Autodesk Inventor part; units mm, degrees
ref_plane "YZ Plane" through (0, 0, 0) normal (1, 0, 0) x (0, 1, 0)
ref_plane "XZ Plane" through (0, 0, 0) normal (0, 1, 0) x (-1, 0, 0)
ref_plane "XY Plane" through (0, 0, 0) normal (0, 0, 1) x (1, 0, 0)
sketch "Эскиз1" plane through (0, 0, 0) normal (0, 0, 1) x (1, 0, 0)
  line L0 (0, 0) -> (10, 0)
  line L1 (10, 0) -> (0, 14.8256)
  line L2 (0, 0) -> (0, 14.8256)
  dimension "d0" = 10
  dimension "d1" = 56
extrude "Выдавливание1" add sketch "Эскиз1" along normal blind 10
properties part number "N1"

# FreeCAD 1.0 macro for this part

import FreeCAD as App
import Part
import Sketcher

V = App.Vector
Q = App.Units.Quantity

doc = App.newDocument("Part")
params = doc.addObject("Spreadsheet::Sheet", "Params")
for row, (alias, value) in enumerate([
    ("sketch1_width", "10 mm"),
    ("pad1_length", "10 mm"),
], start=1):
    params.set(f"A{row}", alias)
    params.set(f"B{row}", "=" + value)
    params.setAlias(f"B{row}", alias)

body = doc.addObject("PartDesign::Body", "Body")

sketch1 = body.newObject("Sketcher::SketchObject", "Sketch")
sketch1.AttachmentSupport = (doc.getObject("XY_Plane"), [""])
sketch1.MapMode = "FlatFace"
sketch1.addGeometry(Part.LineSegment(V(0, 15, 0), V(0, 0, 0)), False)
sketch1.addGeometry(Part.LineSegment(V(0, 0, 0), V(10, 0, 0)), False)
sketch1.addGeometry(Part.LineSegment(V(10, 0, 0), V(0, 15, 0)), False)
sketch1.addConstraint(Sketcher.Constraint("Coincident", 0, 2, 1, 1))
sketch1.addConstraint(Sketcher.Constraint("Coincident", 1, 2, 2, 1))
sketch1.addConstraint(Sketcher.Constraint("Coincident", 2, 2, 0, 1))
sketch1.addConstraint(Sketcher.Constraint("Vertical", 0))
sketch1.addConstraint(Sketcher.Constraint("Horizontal", 1))
sketch1.addConstraint(Sketcher.Constraint("Coincident", 0, 2, -1, 1))
sketch1.addConstraint(Sketcher.Constraint("DistanceX", 1, 1, 1, 2, 10.0))
sketch1.addConstraint(Sketcher.Constraint("Angle", 2, Q("124 deg")))
sketch1.setExpression("Constraints[6]", "Params.sketch1_width")
pad1 = body.newObject("PartDesign::Pad", "Pad")
pad1.Profile = sketch1
pad1.setExpression("Length", "Params.pad1_length")

doc.recompute()
